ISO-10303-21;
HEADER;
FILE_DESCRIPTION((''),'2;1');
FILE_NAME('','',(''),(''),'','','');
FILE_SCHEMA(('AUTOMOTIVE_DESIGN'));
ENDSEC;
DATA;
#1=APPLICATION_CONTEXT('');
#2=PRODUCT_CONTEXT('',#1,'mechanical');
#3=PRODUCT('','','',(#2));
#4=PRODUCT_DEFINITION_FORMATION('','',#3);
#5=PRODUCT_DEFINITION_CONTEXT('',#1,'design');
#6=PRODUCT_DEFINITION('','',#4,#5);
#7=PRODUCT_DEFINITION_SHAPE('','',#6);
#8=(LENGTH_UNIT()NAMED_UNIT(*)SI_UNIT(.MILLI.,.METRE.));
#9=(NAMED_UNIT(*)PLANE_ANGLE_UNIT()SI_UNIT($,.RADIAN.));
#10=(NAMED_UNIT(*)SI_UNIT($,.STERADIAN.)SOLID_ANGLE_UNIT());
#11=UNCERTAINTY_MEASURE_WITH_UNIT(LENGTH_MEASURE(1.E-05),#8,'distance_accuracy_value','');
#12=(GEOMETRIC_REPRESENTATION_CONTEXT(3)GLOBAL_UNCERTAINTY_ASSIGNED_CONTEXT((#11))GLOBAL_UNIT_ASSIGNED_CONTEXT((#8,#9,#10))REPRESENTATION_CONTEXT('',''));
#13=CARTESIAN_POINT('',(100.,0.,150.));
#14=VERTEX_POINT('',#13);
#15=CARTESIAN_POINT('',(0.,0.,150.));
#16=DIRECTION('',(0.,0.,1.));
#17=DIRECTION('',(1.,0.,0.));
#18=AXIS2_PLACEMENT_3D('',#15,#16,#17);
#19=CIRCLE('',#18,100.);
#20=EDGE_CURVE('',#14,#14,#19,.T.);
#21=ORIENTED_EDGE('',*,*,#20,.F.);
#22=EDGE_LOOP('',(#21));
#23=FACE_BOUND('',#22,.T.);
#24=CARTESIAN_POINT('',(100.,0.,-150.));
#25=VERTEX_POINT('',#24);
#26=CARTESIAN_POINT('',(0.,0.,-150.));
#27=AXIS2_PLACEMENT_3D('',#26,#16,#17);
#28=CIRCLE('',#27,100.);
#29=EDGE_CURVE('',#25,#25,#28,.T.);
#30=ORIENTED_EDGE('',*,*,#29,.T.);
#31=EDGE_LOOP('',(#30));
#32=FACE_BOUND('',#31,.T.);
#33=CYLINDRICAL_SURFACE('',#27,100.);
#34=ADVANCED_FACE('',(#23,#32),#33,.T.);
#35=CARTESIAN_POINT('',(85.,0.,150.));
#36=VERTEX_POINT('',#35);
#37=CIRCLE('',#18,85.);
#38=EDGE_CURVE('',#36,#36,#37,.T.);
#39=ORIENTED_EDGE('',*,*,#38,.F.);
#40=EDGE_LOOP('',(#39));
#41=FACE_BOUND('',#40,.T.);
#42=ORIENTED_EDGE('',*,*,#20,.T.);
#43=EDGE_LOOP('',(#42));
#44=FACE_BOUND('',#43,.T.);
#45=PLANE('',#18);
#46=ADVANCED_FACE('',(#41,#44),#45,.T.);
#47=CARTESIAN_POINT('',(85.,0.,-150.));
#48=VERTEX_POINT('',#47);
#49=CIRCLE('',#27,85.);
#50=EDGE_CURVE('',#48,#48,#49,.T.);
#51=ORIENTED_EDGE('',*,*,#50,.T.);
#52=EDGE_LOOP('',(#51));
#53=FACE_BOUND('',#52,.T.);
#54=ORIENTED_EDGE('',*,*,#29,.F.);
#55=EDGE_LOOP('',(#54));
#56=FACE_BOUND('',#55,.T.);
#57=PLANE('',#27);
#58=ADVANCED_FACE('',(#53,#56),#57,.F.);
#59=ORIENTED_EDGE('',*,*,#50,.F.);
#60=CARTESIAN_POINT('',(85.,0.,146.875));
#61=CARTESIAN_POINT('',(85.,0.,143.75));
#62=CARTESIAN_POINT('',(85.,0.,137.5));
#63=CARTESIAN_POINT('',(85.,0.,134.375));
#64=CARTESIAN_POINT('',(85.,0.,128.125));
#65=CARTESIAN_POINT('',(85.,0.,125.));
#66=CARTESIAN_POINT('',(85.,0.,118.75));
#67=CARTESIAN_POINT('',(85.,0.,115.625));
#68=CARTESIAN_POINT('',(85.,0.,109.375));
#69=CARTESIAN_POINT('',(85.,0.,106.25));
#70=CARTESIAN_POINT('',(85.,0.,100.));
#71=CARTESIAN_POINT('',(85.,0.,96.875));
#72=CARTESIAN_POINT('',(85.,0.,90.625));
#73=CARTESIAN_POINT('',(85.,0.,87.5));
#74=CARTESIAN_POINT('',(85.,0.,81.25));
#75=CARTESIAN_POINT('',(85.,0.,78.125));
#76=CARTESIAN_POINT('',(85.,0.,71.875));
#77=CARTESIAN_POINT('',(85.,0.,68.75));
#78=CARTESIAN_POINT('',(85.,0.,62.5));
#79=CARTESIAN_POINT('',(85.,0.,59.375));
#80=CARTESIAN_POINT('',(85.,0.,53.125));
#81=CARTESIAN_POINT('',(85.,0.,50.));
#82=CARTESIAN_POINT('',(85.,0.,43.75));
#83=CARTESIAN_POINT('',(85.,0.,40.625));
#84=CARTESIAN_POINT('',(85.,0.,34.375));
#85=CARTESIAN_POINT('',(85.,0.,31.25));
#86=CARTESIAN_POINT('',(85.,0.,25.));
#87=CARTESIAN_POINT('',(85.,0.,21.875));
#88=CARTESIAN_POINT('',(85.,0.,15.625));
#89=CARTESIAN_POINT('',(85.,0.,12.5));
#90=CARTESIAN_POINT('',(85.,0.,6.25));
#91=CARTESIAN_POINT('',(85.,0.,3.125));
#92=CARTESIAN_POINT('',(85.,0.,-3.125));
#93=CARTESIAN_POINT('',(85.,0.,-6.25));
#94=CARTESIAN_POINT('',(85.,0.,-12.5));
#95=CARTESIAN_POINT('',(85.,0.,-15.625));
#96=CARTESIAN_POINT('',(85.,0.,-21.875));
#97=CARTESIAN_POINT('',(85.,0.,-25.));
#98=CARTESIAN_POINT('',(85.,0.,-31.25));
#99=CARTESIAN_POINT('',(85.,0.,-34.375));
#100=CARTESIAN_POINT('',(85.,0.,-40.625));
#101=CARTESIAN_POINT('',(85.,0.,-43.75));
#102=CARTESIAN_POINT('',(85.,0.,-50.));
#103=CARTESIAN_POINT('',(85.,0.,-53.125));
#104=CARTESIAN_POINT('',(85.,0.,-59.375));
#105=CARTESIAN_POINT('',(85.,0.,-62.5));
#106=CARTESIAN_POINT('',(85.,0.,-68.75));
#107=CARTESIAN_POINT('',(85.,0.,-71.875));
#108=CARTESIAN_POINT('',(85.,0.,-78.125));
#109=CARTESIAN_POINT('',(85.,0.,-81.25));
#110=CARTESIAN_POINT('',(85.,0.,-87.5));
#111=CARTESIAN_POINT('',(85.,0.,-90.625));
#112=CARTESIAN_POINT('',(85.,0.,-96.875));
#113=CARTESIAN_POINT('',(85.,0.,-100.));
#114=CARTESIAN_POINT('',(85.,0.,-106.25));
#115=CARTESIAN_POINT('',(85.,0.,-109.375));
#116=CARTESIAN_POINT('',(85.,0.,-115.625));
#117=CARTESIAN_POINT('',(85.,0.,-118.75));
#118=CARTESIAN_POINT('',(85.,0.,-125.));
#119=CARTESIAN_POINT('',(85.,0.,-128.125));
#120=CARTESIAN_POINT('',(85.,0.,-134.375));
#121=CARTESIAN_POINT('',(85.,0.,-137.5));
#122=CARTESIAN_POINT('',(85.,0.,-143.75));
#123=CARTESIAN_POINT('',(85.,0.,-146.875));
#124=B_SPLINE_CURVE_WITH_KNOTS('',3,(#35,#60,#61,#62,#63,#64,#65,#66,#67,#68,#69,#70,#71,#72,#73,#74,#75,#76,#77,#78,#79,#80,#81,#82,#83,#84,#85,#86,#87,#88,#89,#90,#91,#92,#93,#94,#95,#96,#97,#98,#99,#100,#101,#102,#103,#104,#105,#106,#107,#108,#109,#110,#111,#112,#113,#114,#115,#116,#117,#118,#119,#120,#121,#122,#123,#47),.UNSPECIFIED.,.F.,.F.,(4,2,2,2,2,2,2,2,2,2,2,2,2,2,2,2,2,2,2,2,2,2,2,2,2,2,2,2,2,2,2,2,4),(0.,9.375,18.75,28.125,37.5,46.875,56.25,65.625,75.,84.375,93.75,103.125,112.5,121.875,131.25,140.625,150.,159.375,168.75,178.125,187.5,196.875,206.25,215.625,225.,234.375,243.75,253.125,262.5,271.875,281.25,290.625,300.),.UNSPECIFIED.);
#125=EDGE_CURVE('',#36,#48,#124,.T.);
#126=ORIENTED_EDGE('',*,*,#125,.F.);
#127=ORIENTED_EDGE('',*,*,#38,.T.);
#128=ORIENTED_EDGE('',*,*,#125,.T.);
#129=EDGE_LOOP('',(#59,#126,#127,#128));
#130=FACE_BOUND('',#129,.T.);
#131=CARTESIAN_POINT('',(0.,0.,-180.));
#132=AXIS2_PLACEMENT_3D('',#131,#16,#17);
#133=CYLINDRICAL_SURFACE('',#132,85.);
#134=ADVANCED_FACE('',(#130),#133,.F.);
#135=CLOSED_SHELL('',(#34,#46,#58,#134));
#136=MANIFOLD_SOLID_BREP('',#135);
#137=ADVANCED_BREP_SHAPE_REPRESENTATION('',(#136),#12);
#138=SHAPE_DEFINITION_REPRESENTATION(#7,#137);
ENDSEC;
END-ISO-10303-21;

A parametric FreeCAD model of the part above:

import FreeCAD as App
import Part
import Sketcher
from FreeCAD import Vector
Q = App.Units.Quantity

doc = App.newDocument("Part")
body = doc.addObject("PartDesign::Body", "Body")

# Sketch on XY plane
sketch1 = body.newObject("Sketcher::SketchObject", "Sketch")
sketch1.AttachmentSupport = (doc.getObject("XY_Plane"), [""])
sketch1.MapMode = "FlatFace"
sketch1.addGeometry(Part.Circle(Vector(0, 0, 0), Vector(0, 0, 1), 100), False)
sketch1.addConstraint([
    Sketcher.Constraint("Coincident", 0, 3, -1, 1),
    Sketcher.Constraint("Diameter", 0, Q("200 mm")),
])
pad1 = body.newObject("PartDesign::Pad", "Pad")
pad1.Profile = sketch1
pad1.Type = "TwoLengths"
pad1.Length = 150
pad1.Length2 = 150

# Sketch on XY plane
sketch2 = body.newObject("Sketcher::SketchObject", "Sketch001")
sketch2.AttachmentSupport = (doc.getObject("XY_Plane"), [""])
sketch2.MapMode = "FlatFace"
sketch2.AttachmentOffset = App.Placement(Vector(0, 0, 150), App.Rotation())
sketch2.addGeometry(Part.Circle(Vector(0, 0, 0), Vector(0, 0, 1), 85), False)
sketch2.addConstraint([
    Sketcher.Constraint("Coincident", 0, 3, -1, 1),
    Sketcher.Constraint("Diameter", 0, Q("170 mm")),
])
pocket1 = body.newObject("PartDesign::Pocket", "Pocket")
pocket1.Profile = sketch2
pocket1.Length = 330

doc.recompute()
